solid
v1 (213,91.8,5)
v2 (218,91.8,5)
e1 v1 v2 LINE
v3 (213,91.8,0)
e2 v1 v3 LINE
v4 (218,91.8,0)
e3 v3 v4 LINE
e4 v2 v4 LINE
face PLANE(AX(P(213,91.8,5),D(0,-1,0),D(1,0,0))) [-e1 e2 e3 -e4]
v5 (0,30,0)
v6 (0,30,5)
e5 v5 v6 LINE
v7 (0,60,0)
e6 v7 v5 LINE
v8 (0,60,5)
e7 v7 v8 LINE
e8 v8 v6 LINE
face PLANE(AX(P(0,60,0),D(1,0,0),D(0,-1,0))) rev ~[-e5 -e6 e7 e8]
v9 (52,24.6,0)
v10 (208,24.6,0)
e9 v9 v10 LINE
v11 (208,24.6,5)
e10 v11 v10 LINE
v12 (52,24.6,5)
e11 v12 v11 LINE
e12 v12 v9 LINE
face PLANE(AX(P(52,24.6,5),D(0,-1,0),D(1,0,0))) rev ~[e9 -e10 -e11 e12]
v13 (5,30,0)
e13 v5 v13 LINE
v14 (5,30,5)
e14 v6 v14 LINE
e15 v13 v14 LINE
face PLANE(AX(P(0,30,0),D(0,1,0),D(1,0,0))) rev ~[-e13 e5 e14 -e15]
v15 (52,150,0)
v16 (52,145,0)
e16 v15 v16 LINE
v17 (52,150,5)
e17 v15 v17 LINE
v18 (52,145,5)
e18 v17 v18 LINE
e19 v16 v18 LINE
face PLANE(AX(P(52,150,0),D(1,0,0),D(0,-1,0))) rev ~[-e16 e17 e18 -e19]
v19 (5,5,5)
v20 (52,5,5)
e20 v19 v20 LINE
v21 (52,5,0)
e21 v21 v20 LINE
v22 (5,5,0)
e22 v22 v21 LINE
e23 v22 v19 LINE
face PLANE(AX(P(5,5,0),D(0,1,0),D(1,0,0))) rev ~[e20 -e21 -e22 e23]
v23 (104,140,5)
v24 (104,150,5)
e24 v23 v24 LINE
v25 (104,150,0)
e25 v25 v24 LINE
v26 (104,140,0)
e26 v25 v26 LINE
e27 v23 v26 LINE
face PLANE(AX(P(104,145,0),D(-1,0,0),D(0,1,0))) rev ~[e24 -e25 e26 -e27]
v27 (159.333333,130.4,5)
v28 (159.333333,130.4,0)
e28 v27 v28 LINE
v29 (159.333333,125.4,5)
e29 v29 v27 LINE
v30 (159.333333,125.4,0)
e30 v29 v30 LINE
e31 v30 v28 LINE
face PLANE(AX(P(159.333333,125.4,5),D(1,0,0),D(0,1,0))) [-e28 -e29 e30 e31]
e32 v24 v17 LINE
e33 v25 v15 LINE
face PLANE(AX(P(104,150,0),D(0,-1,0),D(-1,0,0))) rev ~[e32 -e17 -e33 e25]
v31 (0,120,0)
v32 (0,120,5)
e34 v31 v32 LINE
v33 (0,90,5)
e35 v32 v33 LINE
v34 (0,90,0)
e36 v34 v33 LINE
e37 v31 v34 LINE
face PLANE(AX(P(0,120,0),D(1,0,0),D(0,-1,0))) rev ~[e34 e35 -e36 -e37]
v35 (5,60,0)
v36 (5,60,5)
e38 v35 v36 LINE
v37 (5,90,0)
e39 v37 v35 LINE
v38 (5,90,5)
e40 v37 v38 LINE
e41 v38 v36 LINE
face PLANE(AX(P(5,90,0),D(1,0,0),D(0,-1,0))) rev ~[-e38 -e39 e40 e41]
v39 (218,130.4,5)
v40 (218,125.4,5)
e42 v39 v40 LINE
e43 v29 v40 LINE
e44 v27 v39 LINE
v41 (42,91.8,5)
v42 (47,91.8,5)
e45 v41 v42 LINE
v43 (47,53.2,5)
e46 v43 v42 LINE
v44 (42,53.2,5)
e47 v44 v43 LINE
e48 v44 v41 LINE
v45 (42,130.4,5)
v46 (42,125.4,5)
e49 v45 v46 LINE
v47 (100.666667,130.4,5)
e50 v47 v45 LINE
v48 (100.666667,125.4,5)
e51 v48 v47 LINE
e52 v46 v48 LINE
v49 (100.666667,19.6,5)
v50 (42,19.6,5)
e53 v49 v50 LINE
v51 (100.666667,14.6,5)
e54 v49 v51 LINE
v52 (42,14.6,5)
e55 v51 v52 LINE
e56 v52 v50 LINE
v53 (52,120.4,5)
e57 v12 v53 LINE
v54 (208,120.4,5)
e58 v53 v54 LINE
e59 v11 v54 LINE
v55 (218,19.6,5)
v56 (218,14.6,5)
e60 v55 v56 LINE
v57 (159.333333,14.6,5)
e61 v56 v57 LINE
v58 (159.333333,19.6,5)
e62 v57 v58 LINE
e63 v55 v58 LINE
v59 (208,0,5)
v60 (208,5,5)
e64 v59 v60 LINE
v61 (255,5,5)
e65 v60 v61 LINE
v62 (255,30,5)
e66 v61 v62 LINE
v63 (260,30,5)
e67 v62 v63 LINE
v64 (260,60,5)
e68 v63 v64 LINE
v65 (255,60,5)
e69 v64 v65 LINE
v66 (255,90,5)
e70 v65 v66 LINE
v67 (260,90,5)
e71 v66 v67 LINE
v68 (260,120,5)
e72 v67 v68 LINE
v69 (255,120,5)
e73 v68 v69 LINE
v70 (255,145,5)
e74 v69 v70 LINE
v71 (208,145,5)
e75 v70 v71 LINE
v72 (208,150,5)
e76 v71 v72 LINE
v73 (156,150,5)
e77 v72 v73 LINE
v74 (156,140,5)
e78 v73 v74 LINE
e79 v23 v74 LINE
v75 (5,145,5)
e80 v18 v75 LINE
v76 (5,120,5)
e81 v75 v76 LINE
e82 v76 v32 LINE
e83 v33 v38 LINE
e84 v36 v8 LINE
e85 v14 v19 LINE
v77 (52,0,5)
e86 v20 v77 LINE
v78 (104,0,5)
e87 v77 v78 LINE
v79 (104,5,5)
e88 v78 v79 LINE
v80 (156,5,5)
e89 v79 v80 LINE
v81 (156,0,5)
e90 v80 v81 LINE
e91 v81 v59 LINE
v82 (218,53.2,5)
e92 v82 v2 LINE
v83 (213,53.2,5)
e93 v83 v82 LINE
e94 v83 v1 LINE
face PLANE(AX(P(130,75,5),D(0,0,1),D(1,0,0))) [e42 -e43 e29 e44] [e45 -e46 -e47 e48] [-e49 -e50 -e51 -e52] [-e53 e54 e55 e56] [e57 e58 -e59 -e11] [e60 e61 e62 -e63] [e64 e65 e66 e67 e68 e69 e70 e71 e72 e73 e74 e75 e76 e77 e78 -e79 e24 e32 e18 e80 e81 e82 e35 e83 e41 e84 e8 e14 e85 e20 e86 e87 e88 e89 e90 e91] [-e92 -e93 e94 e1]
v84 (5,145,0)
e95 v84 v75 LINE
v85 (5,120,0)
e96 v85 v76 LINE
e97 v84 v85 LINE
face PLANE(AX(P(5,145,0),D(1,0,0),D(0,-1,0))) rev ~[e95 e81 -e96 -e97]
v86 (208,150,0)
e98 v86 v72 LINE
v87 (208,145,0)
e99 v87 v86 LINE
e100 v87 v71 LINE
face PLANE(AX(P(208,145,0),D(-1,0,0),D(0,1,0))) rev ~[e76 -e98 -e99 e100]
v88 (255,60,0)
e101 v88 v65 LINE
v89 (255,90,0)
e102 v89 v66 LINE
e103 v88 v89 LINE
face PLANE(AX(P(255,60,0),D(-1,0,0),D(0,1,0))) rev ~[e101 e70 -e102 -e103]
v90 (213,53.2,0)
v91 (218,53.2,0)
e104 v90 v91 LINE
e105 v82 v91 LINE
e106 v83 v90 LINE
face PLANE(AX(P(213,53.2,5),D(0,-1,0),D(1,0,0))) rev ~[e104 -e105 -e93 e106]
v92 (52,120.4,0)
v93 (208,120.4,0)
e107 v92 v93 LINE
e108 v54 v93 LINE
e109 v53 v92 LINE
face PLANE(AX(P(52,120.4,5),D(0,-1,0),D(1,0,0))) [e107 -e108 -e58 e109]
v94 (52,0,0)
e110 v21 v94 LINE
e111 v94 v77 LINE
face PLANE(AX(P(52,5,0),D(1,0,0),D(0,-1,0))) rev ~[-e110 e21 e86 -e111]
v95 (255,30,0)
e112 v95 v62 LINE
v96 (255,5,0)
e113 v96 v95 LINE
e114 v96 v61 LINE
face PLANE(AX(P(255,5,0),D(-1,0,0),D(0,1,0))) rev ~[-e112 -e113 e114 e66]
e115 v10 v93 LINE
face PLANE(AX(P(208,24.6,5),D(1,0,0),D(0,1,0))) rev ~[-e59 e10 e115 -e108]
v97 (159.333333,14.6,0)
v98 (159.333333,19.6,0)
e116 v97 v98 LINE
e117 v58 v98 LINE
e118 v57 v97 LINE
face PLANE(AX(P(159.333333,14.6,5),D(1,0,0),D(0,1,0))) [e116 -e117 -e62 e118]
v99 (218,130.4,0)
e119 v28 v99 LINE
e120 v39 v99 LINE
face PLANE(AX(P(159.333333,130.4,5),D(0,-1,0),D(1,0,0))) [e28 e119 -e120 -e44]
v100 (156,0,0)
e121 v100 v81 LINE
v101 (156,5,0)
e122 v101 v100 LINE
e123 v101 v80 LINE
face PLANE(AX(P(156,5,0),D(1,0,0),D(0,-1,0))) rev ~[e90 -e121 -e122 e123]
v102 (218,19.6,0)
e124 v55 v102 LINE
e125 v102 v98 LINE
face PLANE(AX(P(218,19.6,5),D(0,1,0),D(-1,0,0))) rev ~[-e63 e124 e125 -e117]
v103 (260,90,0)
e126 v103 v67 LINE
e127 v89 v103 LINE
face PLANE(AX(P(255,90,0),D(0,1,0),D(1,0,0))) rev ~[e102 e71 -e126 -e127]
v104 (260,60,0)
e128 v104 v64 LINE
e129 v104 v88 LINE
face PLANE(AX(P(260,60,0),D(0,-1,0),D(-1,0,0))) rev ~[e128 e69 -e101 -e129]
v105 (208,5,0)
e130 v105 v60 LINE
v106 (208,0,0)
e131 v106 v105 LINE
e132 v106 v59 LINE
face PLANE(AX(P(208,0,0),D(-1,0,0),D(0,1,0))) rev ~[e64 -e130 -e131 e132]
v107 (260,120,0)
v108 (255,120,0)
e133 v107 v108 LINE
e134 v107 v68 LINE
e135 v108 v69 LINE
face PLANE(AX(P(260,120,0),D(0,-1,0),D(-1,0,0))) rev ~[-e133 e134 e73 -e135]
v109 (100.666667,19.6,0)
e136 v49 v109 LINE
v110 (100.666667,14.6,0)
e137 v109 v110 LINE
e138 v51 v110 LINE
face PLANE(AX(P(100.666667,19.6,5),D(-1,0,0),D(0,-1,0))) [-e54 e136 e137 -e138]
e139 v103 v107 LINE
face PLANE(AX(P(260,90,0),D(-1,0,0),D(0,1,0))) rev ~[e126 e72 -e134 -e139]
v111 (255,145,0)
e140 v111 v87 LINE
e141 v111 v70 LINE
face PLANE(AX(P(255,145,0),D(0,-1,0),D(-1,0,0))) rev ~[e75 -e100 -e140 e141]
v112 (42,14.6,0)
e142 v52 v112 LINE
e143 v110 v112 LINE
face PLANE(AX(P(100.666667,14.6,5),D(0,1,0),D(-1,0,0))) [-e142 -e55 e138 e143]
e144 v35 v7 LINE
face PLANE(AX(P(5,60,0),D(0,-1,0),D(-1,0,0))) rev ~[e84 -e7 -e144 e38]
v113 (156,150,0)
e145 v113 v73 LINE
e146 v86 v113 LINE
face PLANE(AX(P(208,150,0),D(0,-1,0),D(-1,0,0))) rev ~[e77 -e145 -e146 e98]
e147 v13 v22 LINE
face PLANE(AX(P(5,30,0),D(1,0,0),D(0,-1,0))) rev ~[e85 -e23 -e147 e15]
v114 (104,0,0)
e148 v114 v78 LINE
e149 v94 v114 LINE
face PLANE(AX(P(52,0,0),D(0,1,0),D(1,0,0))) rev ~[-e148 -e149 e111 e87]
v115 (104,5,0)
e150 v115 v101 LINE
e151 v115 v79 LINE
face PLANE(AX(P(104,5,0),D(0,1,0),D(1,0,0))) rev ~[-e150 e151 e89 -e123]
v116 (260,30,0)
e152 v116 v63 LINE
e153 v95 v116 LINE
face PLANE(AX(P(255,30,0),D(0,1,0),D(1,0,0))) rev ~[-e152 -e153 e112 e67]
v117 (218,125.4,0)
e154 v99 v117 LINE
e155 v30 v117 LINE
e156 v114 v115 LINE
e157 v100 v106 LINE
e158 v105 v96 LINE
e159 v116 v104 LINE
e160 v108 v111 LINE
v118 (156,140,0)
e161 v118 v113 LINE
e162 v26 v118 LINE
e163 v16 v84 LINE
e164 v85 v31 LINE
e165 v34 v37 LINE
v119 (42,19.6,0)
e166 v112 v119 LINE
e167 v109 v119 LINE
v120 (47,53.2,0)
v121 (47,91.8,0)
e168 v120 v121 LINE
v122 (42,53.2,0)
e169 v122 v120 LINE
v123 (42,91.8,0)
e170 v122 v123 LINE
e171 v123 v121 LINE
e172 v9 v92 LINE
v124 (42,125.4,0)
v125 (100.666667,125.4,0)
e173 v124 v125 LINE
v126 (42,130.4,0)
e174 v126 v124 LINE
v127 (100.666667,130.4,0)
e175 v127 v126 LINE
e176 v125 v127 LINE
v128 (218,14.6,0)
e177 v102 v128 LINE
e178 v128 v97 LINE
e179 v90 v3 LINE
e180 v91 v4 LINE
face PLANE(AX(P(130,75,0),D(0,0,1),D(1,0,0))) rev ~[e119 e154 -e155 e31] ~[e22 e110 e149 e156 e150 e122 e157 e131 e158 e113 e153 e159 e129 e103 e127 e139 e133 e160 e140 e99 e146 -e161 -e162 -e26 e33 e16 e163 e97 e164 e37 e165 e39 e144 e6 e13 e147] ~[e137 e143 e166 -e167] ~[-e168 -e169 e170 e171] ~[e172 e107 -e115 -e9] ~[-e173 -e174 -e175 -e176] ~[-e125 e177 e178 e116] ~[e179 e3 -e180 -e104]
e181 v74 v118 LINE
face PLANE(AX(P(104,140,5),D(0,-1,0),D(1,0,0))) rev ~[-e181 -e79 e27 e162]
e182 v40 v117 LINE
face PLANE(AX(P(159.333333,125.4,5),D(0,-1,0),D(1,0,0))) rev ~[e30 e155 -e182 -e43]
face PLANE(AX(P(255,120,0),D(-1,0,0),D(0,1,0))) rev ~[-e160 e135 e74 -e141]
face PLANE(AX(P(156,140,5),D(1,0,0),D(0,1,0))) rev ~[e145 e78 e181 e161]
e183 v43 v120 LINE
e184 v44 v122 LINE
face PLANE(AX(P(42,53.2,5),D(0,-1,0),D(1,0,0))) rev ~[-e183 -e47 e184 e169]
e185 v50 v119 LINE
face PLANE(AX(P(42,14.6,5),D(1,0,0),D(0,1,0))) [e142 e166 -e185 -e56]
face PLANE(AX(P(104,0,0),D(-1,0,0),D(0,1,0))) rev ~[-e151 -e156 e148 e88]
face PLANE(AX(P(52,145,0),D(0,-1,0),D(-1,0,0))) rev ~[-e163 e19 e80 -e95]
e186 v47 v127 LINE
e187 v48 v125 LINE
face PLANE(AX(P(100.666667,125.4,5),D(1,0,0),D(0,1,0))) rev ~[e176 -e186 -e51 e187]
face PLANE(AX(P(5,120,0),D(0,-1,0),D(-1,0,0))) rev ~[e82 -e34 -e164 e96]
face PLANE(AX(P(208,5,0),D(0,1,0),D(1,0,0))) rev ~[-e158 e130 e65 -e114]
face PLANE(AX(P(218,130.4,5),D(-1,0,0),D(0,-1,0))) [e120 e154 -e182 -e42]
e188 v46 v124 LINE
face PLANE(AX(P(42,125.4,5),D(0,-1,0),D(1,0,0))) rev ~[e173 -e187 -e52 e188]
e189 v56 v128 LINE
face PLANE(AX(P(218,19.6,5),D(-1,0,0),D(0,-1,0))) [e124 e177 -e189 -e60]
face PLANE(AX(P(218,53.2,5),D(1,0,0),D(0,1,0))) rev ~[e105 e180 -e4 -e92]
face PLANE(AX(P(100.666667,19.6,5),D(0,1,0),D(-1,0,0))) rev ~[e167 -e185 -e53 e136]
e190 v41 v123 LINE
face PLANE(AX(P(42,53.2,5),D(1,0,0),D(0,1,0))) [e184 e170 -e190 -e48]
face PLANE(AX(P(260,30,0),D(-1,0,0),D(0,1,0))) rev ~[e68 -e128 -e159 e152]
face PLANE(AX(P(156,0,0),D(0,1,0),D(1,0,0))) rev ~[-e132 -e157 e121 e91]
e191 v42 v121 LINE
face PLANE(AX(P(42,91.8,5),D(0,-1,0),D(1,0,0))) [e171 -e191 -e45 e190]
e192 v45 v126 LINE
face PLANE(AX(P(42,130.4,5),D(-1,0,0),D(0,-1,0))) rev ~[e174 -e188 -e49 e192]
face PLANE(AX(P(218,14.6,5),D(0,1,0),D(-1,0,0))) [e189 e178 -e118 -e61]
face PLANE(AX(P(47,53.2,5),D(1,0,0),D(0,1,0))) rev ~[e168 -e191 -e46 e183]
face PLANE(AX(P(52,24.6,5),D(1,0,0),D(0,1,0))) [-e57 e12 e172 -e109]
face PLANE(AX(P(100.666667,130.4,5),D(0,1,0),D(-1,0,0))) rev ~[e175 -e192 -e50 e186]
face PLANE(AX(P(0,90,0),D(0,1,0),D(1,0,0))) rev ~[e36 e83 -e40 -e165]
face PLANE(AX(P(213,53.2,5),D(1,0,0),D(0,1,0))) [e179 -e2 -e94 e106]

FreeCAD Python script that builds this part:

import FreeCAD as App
import Part
import Sketcher
from FreeCAD import Vector


def add_polygon(sketch, points):
    """Adds a closed chain of lines whose ends are joined by coincident constraints."""
    first, n = sketch.GeometryCount, len(points)
    for a, b in zip(points, points[1:] + points[:1]):
        sketch.addGeometry(Part.LineSegment(App.Vector(*a, 0), App.Vector(*b, 0)), False)
    for i in range(n):
        sketch.addConstraint(Sketcher.Constraint("Coincident", first + i, 2, first + (i + 1) % n, 1))

doc = App.newDocument("Part")
body = doc.addObject("PartDesign::Body", "Body")

# Sketch on XY plane
sketch1 = doc.addObject("Sketcher::SketchObject", "Sketch")
body.addObject(sketch1)
sketch1.AttachmentSupport = (doc.XY_Plane, [""])
sketch1.MapMode = "FlatFace"
add_polygon(sketch1, [(52, 0), (104, 0), (104, 5), (156, 5), (156, 0), (208, 0), (208, 5), (255, 5), (255, 30), (260, 30), (260, 60), (255, 60), (255, 90), (260, 90), (260, 120), (255, 120), (255, 145), (208, 145), (208, 150), (156, 150), (156, 145), (104, 145), (104, 150), (52, 150), (52, 145), (5, 145), (5, 120), (0, 120), (0, 90), (5, 90), (5, 60), (0, 60), (0, 30), (5, 30), (5, 5), (52, 5)])  # lines 0-35
sketch1.addConstraint([
    Sketcher.Constraint("Horizontal", 0),
    Sketcher.Constraint("Vertical", 1),
    Sketcher.Constraint("Horizontal", 2),
    Sketcher.Constraint("Vertical", 3),
    Sketcher.Constraint("Horizontal", 4),
    Sketcher.Constraint("Vertical", 5),
    Sketcher.Constraint("Horizontal", 6),
    Sketcher.Constraint("Vertical", 7),
    Sketcher.Constraint("Horizontal", 8),
    Sketcher.Constraint("Vertical", 9),
    Sketcher.Constraint("Horizontal", 10),
    Sketcher.Constraint("Vertical", 11),
    Sketcher.Constraint("Horizontal", 12),
    Sketcher.Constraint("Vertical", 13),
    Sketcher.Constraint("Horizontal", 14),
    Sketcher.Constraint("Vertical", 15),
    Sketcher.Constraint("Horizontal", 16),
    Sketcher.Constraint("Vertical", 17),
    Sketcher.Constraint("Horizontal", 18),
    Sketcher.Constraint("Vertical", 19),
    Sketcher.Constraint("Horizontal", 20),
    Sketcher.Constraint("Vertical", 21),
    Sketcher.Constraint("Horizontal", 22),
    Sketcher.Constraint("Vertical", 23),
    Sketcher.Constraint("Horizontal", 24),
    Sketcher.Constraint("Vertical", 25),
    Sketcher.Constraint("Horizontal", 26),
    Sketcher.Constraint("Vertical", 27),
    Sketcher.Constraint("Horizontal", 28),
    Sketcher.Constraint("Vertical", 29),
    Sketcher.Constraint("Horizontal", 30),
    Sketcher.Constraint("Vertical", 31),
    Sketcher.Constraint("Horizontal", 32),
    Sketcher.Constraint("Vertical", 33),
    Sketcher.Constraint("Horizontal", 34),
    Sketcher.Constraint("Vertical", 35),
    Sketcher.Constraint("PointOnObject", 0, 2, -1),
    Sketcher.Constraint("PointOnObject", 3, 2, -1),
    Sketcher.Constraint("PointOnObject", 26, 2, -2),
    Sketcher.Constraint("PointOnObject", 30, 2, -2),
    Sketcher.Constraint("Horizontal", 2, 2, 5, 2),
    Sketcher.Constraint("Horizontal", 16, 2, 19, 2),
    Sketcher.Constraint("Horizontal", 18, 2, 21, 2),
    Sketcher.Constraint("Horizontal", 20, 2, 23, 2),
    Sketcher.Constraint("Horizontal", 14, 2, 25, 2),
    Sketcher.Constraint("Horizontal", 12, 2, 27, 2),
    Sketcher.Constraint("Horizontal", 10, 2, 29, 2),
    Sketcher.Constraint("Horizontal", 8, 2, 31, 2),
    Sketcher.Constraint("Horizontal", 6, 2, 33, 2),
    Sketcher.Constraint("Vertical", 7, 2, 10, 2),
    Sketcher.Constraint("Vertical", 9, 2, 12, 2),
    Sketcher.Constraint("Vertical", 11, 2, 14, 2),
    Sketcher.Constraint("Vertical", 5, 2, 16, 2),
    Sketcher.Constraint("Vertical", 3, 2, 18, 2),
    Sketcher.Constraint("Vertical", 1, 2, 20, 2),
    Sketcher.Constraint("Vertical", 25, 2, 28, 2),
    Sketcher.Constraint("Vertical", 29, 2, 32, 2),
    Sketcher.Constraint("Vertical", 23, 2, 34, 2),
    Sketcher.Constraint("Equal", 0, 2),
    Sketcher.Constraint("Equal", 2, 4),
    Sketcher.Constraint("Equal", 16, 24),
    Sketcher.Constraint("Equal", 14, 26),
    Sketcher.Constraint("Equal", 32, 1),
    Sketcher.Constraint("Equal", 9, 11),
    Sketcher.Constraint("Equal", 11, 13),
    Sketcher.Constraint("Equal", 7, 15),
    Sketcher.Constraint("Equal", 5, 17),
    Sketcher.Constraint("DistanceX", 0, 1, 0, 2, 52.0),
    Sketcher.Constraint("DistanceX", 6, 1, 6, 2, 47.0),
    Sketcher.Constraint("DistanceX", 8, 1, 8, 2, 5.0),
    Sketcher.Constraint("DistanceY", 7, 1, 7, 2, 25.0),
    Sketcher.Constraint("DistanceY", 9, 1, 9, 2, 30.0),
])
pad1 = doc.addObject("PartDesign::Pad", "Pad")
body.addObject(pad1)
pad1.Profile = sketch1
pad1.Length = 5

# Sketch on XY plane
sketch2 = doc.addObject("Sketcher::SketchObject", "Sketch001")
body.addObject(sketch2)
sketch2.AttachmentSupport = (doc.XY_Plane, [""])
sketch2.MapMode = "FlatFace"
sketch2.AttachmentOffset = App.Placement(Vector(0, 0, 5), App.Rotation())
add_polygon(sketch2, [(104, 145), (104, 140), (156, 140), (156, 145)])  # lines 0-3
sketch2.addConstraint([
    Sketcher.Constraint("Vertical", 0),
    Sketcher.Constraint("Horizontal", 1),
    Sketcher.Constraint("Vertical", 2),
    Sketcher.Constraint("Horizontal", 3),
    Sketcher.Constraint("DistanceX", 1, 1, 1, 2, 52.0),
    Sketcher.Constraint("DistanceY", 0, 2, 0, 1, 5.0),
    Sketcher.Constraint("DistanceX", -1, 1, 0, 2, 104.0),
    Sketcher.Constraint("DistanceY", -1, 1, 0, 2, 140.0),
])
pocket1 = doc.addObject("PartDesign::Pocket", "Pocket")
body.addObject(pocket1)
pocket1.Profile = sketch2
pocket1.Length = 10

# Sketch on XY plane
sketch3 = doc.addObject("Sketcher::SketchObject", "Sketch002")
body.addObject(sketch3)
sketch3.AttachmentSupport = (doc.XY_Plane, [""])
sketch3.MapMode = "FlatFace"
sketch3.AttachmentOffset = App.Placement(Vector(0, 0, 5), App.Rotation())
add_polygon(sketch3, [(42, 92), (42, 53), (47, 53), (47, 92)])  # lines 0-3
add_polygon(sketch3, [(52, 120), (52, 25), (208, 25), (208, 120)])  # lines 4-7
add_polygon(sketch3, [(101, 20), (42, 20), (42, 15), (101, 15)])  # lines 8-11
add_polygon(sketch3, [(213, 92), (213, 53), (218, 53), (218, 92)])  # lines 12-15
add_polygon(sketch3, [(101, 125), (101, 130), (42, 130), (42, 125)])  # lines 16-19
add_polygon(sketch3, [(218, 125), (218, 130), (159, 130), (159, 125)])  # lines 20-23
add_polygon(sketch3, [(159, 20), (159, 15), (218, 15), (218, 20)])  # lines 24-27
sketch3.addConstraint([
    Sketcher.Constraint("Vertical", 0),
    Sketcher.Constraint("Horizontal", 1),
    Sketcher.Constraint("Vertical", 2),
    Sketcher.Constraint("Horizontal", 3),
    Sketcher.Constraint("Vertical", 4),
    Sketcher.Constraint("Horizontal", 5),
    Sketcher.Constraint("Vertical", 6),
    Sketcher.Constraint("Horizontal", 7),
    Sketcher.Constraint("Horizontal", 8),
    Sketcher.Constraint("Vertical", 9),
    Sketcher.Constraint("Horizontal", 10),
    Sketcher.Constraint("Vertical", 11),
    Sketcher.Constraint("Vertical", 12),
    Sketcher.Constraint("Horizontal", 13),
    Sketcher.Constraint("Vertical", 14),
    Sketcher.Constraint("Horizontal", 15),
    Sketcher.Constraint("Vertical", 16),
    Sketcher.Constraint("Horizontal", 17),
    Sketcher.Constraint("Vertical", 18),
    Sketcher.Constraint("Horizontal", 19),
    Sketcher.Constraint("Vertical", 20),
    Sketcher.Constraint("Horizontal", 21),
    Sketcher.Constraint("Vertical", 22),
    Sketcher.Constraint("Horizontal", 23),
    Sketcher.Constraint("Vertical", 24),
    Sketcher.Constraint("Horizontal", 25),
    Sketcher.Constraint("Vertical", 26),
    Sketcher.Constraint("Horizontal", 27),
    Sketcher.Constraint("Horizontal", 1, 2, 12, 2),
    Sketcher.Constraint("Horizontal", 3, 2, 14, 2),
    Sketcher.Constraint("Horizontal", 17, 2, 20, 2),
    Sketcher.Constraint("Horizontal", 19, 2, 22, 2),
    Sketcher.Constraint("Horizontal", 10, 2, 24, 2),
    Sketcher.Constraint("Horizontal", 11, 2, 26, 2),
    Sketcher.Constraint("Vertical", 3, 2, 8, 2),
    Sketcher.Constraint("Vertical", 11, 2, 16, 2),
    Sketcher.Constraint("Vertical", 9, 2, 17, 2),
    Sketcher.Constraint("Vertical", 14, 2, 20, 2),
    Sketcher.Constraint("Vertical", 22, 2, 24, 2),
    Sketcher.Constraint("Vertical", 23, 2, 25, 2),
    Sketcher.Constraint("Equal", 3, 13),
    Sketcher.Constraint("Equal", 19, 21),
    Sketcher.Constraint("Equal", 15, 9),
    Sketcher.Constraint("Equal", 11, 16),
    Sketcher.Constraint("DistanceX", 1, 1, 1, 2, 5.0),
    Sketcher.Constraint("DistanceX", 5, 1, 5, 2, 156.0),
    Sketcher.Constraint("DistanceY", 0, 2, 0, 1, 38.6),
    Sketcher.Constraint("DistanceY", 4, 2, 4, 1, 95.8),
    Sketcher.Constraint("DistanceX", -1, 1, 0, 2, 42.0),
    Sketcher.Constraint("DistanceX", -1, 1, 4, 2, 52.0),
    Sketcher.Constraint("DistanceX", -1, 1, 12, 2, 213.0),
    Sketcher.Constraint("DistanceY", 8, 2, 4, 2, 5.0),
    Sketcher.Constraint("DistanceY", 7, 2, 16, 2, 10.0),
    Sketcher.Constraint("DistanceY", -1, 1, 0, 2, 53.2),
    Sketcher.Constraint("DistanceY", -1, 1, 4, 2, 24.6),
    Sketcher.Constraint("DistanceX", 8, 2, 8, 1, 58.666667),
])
pocket2 = doc.addObject("PartDesign::Pocket", "Pocket001")
body.addObject(pocket2)
pocket2.Profile = sketch3
pocket2.Length = 10

doc.recompute()
